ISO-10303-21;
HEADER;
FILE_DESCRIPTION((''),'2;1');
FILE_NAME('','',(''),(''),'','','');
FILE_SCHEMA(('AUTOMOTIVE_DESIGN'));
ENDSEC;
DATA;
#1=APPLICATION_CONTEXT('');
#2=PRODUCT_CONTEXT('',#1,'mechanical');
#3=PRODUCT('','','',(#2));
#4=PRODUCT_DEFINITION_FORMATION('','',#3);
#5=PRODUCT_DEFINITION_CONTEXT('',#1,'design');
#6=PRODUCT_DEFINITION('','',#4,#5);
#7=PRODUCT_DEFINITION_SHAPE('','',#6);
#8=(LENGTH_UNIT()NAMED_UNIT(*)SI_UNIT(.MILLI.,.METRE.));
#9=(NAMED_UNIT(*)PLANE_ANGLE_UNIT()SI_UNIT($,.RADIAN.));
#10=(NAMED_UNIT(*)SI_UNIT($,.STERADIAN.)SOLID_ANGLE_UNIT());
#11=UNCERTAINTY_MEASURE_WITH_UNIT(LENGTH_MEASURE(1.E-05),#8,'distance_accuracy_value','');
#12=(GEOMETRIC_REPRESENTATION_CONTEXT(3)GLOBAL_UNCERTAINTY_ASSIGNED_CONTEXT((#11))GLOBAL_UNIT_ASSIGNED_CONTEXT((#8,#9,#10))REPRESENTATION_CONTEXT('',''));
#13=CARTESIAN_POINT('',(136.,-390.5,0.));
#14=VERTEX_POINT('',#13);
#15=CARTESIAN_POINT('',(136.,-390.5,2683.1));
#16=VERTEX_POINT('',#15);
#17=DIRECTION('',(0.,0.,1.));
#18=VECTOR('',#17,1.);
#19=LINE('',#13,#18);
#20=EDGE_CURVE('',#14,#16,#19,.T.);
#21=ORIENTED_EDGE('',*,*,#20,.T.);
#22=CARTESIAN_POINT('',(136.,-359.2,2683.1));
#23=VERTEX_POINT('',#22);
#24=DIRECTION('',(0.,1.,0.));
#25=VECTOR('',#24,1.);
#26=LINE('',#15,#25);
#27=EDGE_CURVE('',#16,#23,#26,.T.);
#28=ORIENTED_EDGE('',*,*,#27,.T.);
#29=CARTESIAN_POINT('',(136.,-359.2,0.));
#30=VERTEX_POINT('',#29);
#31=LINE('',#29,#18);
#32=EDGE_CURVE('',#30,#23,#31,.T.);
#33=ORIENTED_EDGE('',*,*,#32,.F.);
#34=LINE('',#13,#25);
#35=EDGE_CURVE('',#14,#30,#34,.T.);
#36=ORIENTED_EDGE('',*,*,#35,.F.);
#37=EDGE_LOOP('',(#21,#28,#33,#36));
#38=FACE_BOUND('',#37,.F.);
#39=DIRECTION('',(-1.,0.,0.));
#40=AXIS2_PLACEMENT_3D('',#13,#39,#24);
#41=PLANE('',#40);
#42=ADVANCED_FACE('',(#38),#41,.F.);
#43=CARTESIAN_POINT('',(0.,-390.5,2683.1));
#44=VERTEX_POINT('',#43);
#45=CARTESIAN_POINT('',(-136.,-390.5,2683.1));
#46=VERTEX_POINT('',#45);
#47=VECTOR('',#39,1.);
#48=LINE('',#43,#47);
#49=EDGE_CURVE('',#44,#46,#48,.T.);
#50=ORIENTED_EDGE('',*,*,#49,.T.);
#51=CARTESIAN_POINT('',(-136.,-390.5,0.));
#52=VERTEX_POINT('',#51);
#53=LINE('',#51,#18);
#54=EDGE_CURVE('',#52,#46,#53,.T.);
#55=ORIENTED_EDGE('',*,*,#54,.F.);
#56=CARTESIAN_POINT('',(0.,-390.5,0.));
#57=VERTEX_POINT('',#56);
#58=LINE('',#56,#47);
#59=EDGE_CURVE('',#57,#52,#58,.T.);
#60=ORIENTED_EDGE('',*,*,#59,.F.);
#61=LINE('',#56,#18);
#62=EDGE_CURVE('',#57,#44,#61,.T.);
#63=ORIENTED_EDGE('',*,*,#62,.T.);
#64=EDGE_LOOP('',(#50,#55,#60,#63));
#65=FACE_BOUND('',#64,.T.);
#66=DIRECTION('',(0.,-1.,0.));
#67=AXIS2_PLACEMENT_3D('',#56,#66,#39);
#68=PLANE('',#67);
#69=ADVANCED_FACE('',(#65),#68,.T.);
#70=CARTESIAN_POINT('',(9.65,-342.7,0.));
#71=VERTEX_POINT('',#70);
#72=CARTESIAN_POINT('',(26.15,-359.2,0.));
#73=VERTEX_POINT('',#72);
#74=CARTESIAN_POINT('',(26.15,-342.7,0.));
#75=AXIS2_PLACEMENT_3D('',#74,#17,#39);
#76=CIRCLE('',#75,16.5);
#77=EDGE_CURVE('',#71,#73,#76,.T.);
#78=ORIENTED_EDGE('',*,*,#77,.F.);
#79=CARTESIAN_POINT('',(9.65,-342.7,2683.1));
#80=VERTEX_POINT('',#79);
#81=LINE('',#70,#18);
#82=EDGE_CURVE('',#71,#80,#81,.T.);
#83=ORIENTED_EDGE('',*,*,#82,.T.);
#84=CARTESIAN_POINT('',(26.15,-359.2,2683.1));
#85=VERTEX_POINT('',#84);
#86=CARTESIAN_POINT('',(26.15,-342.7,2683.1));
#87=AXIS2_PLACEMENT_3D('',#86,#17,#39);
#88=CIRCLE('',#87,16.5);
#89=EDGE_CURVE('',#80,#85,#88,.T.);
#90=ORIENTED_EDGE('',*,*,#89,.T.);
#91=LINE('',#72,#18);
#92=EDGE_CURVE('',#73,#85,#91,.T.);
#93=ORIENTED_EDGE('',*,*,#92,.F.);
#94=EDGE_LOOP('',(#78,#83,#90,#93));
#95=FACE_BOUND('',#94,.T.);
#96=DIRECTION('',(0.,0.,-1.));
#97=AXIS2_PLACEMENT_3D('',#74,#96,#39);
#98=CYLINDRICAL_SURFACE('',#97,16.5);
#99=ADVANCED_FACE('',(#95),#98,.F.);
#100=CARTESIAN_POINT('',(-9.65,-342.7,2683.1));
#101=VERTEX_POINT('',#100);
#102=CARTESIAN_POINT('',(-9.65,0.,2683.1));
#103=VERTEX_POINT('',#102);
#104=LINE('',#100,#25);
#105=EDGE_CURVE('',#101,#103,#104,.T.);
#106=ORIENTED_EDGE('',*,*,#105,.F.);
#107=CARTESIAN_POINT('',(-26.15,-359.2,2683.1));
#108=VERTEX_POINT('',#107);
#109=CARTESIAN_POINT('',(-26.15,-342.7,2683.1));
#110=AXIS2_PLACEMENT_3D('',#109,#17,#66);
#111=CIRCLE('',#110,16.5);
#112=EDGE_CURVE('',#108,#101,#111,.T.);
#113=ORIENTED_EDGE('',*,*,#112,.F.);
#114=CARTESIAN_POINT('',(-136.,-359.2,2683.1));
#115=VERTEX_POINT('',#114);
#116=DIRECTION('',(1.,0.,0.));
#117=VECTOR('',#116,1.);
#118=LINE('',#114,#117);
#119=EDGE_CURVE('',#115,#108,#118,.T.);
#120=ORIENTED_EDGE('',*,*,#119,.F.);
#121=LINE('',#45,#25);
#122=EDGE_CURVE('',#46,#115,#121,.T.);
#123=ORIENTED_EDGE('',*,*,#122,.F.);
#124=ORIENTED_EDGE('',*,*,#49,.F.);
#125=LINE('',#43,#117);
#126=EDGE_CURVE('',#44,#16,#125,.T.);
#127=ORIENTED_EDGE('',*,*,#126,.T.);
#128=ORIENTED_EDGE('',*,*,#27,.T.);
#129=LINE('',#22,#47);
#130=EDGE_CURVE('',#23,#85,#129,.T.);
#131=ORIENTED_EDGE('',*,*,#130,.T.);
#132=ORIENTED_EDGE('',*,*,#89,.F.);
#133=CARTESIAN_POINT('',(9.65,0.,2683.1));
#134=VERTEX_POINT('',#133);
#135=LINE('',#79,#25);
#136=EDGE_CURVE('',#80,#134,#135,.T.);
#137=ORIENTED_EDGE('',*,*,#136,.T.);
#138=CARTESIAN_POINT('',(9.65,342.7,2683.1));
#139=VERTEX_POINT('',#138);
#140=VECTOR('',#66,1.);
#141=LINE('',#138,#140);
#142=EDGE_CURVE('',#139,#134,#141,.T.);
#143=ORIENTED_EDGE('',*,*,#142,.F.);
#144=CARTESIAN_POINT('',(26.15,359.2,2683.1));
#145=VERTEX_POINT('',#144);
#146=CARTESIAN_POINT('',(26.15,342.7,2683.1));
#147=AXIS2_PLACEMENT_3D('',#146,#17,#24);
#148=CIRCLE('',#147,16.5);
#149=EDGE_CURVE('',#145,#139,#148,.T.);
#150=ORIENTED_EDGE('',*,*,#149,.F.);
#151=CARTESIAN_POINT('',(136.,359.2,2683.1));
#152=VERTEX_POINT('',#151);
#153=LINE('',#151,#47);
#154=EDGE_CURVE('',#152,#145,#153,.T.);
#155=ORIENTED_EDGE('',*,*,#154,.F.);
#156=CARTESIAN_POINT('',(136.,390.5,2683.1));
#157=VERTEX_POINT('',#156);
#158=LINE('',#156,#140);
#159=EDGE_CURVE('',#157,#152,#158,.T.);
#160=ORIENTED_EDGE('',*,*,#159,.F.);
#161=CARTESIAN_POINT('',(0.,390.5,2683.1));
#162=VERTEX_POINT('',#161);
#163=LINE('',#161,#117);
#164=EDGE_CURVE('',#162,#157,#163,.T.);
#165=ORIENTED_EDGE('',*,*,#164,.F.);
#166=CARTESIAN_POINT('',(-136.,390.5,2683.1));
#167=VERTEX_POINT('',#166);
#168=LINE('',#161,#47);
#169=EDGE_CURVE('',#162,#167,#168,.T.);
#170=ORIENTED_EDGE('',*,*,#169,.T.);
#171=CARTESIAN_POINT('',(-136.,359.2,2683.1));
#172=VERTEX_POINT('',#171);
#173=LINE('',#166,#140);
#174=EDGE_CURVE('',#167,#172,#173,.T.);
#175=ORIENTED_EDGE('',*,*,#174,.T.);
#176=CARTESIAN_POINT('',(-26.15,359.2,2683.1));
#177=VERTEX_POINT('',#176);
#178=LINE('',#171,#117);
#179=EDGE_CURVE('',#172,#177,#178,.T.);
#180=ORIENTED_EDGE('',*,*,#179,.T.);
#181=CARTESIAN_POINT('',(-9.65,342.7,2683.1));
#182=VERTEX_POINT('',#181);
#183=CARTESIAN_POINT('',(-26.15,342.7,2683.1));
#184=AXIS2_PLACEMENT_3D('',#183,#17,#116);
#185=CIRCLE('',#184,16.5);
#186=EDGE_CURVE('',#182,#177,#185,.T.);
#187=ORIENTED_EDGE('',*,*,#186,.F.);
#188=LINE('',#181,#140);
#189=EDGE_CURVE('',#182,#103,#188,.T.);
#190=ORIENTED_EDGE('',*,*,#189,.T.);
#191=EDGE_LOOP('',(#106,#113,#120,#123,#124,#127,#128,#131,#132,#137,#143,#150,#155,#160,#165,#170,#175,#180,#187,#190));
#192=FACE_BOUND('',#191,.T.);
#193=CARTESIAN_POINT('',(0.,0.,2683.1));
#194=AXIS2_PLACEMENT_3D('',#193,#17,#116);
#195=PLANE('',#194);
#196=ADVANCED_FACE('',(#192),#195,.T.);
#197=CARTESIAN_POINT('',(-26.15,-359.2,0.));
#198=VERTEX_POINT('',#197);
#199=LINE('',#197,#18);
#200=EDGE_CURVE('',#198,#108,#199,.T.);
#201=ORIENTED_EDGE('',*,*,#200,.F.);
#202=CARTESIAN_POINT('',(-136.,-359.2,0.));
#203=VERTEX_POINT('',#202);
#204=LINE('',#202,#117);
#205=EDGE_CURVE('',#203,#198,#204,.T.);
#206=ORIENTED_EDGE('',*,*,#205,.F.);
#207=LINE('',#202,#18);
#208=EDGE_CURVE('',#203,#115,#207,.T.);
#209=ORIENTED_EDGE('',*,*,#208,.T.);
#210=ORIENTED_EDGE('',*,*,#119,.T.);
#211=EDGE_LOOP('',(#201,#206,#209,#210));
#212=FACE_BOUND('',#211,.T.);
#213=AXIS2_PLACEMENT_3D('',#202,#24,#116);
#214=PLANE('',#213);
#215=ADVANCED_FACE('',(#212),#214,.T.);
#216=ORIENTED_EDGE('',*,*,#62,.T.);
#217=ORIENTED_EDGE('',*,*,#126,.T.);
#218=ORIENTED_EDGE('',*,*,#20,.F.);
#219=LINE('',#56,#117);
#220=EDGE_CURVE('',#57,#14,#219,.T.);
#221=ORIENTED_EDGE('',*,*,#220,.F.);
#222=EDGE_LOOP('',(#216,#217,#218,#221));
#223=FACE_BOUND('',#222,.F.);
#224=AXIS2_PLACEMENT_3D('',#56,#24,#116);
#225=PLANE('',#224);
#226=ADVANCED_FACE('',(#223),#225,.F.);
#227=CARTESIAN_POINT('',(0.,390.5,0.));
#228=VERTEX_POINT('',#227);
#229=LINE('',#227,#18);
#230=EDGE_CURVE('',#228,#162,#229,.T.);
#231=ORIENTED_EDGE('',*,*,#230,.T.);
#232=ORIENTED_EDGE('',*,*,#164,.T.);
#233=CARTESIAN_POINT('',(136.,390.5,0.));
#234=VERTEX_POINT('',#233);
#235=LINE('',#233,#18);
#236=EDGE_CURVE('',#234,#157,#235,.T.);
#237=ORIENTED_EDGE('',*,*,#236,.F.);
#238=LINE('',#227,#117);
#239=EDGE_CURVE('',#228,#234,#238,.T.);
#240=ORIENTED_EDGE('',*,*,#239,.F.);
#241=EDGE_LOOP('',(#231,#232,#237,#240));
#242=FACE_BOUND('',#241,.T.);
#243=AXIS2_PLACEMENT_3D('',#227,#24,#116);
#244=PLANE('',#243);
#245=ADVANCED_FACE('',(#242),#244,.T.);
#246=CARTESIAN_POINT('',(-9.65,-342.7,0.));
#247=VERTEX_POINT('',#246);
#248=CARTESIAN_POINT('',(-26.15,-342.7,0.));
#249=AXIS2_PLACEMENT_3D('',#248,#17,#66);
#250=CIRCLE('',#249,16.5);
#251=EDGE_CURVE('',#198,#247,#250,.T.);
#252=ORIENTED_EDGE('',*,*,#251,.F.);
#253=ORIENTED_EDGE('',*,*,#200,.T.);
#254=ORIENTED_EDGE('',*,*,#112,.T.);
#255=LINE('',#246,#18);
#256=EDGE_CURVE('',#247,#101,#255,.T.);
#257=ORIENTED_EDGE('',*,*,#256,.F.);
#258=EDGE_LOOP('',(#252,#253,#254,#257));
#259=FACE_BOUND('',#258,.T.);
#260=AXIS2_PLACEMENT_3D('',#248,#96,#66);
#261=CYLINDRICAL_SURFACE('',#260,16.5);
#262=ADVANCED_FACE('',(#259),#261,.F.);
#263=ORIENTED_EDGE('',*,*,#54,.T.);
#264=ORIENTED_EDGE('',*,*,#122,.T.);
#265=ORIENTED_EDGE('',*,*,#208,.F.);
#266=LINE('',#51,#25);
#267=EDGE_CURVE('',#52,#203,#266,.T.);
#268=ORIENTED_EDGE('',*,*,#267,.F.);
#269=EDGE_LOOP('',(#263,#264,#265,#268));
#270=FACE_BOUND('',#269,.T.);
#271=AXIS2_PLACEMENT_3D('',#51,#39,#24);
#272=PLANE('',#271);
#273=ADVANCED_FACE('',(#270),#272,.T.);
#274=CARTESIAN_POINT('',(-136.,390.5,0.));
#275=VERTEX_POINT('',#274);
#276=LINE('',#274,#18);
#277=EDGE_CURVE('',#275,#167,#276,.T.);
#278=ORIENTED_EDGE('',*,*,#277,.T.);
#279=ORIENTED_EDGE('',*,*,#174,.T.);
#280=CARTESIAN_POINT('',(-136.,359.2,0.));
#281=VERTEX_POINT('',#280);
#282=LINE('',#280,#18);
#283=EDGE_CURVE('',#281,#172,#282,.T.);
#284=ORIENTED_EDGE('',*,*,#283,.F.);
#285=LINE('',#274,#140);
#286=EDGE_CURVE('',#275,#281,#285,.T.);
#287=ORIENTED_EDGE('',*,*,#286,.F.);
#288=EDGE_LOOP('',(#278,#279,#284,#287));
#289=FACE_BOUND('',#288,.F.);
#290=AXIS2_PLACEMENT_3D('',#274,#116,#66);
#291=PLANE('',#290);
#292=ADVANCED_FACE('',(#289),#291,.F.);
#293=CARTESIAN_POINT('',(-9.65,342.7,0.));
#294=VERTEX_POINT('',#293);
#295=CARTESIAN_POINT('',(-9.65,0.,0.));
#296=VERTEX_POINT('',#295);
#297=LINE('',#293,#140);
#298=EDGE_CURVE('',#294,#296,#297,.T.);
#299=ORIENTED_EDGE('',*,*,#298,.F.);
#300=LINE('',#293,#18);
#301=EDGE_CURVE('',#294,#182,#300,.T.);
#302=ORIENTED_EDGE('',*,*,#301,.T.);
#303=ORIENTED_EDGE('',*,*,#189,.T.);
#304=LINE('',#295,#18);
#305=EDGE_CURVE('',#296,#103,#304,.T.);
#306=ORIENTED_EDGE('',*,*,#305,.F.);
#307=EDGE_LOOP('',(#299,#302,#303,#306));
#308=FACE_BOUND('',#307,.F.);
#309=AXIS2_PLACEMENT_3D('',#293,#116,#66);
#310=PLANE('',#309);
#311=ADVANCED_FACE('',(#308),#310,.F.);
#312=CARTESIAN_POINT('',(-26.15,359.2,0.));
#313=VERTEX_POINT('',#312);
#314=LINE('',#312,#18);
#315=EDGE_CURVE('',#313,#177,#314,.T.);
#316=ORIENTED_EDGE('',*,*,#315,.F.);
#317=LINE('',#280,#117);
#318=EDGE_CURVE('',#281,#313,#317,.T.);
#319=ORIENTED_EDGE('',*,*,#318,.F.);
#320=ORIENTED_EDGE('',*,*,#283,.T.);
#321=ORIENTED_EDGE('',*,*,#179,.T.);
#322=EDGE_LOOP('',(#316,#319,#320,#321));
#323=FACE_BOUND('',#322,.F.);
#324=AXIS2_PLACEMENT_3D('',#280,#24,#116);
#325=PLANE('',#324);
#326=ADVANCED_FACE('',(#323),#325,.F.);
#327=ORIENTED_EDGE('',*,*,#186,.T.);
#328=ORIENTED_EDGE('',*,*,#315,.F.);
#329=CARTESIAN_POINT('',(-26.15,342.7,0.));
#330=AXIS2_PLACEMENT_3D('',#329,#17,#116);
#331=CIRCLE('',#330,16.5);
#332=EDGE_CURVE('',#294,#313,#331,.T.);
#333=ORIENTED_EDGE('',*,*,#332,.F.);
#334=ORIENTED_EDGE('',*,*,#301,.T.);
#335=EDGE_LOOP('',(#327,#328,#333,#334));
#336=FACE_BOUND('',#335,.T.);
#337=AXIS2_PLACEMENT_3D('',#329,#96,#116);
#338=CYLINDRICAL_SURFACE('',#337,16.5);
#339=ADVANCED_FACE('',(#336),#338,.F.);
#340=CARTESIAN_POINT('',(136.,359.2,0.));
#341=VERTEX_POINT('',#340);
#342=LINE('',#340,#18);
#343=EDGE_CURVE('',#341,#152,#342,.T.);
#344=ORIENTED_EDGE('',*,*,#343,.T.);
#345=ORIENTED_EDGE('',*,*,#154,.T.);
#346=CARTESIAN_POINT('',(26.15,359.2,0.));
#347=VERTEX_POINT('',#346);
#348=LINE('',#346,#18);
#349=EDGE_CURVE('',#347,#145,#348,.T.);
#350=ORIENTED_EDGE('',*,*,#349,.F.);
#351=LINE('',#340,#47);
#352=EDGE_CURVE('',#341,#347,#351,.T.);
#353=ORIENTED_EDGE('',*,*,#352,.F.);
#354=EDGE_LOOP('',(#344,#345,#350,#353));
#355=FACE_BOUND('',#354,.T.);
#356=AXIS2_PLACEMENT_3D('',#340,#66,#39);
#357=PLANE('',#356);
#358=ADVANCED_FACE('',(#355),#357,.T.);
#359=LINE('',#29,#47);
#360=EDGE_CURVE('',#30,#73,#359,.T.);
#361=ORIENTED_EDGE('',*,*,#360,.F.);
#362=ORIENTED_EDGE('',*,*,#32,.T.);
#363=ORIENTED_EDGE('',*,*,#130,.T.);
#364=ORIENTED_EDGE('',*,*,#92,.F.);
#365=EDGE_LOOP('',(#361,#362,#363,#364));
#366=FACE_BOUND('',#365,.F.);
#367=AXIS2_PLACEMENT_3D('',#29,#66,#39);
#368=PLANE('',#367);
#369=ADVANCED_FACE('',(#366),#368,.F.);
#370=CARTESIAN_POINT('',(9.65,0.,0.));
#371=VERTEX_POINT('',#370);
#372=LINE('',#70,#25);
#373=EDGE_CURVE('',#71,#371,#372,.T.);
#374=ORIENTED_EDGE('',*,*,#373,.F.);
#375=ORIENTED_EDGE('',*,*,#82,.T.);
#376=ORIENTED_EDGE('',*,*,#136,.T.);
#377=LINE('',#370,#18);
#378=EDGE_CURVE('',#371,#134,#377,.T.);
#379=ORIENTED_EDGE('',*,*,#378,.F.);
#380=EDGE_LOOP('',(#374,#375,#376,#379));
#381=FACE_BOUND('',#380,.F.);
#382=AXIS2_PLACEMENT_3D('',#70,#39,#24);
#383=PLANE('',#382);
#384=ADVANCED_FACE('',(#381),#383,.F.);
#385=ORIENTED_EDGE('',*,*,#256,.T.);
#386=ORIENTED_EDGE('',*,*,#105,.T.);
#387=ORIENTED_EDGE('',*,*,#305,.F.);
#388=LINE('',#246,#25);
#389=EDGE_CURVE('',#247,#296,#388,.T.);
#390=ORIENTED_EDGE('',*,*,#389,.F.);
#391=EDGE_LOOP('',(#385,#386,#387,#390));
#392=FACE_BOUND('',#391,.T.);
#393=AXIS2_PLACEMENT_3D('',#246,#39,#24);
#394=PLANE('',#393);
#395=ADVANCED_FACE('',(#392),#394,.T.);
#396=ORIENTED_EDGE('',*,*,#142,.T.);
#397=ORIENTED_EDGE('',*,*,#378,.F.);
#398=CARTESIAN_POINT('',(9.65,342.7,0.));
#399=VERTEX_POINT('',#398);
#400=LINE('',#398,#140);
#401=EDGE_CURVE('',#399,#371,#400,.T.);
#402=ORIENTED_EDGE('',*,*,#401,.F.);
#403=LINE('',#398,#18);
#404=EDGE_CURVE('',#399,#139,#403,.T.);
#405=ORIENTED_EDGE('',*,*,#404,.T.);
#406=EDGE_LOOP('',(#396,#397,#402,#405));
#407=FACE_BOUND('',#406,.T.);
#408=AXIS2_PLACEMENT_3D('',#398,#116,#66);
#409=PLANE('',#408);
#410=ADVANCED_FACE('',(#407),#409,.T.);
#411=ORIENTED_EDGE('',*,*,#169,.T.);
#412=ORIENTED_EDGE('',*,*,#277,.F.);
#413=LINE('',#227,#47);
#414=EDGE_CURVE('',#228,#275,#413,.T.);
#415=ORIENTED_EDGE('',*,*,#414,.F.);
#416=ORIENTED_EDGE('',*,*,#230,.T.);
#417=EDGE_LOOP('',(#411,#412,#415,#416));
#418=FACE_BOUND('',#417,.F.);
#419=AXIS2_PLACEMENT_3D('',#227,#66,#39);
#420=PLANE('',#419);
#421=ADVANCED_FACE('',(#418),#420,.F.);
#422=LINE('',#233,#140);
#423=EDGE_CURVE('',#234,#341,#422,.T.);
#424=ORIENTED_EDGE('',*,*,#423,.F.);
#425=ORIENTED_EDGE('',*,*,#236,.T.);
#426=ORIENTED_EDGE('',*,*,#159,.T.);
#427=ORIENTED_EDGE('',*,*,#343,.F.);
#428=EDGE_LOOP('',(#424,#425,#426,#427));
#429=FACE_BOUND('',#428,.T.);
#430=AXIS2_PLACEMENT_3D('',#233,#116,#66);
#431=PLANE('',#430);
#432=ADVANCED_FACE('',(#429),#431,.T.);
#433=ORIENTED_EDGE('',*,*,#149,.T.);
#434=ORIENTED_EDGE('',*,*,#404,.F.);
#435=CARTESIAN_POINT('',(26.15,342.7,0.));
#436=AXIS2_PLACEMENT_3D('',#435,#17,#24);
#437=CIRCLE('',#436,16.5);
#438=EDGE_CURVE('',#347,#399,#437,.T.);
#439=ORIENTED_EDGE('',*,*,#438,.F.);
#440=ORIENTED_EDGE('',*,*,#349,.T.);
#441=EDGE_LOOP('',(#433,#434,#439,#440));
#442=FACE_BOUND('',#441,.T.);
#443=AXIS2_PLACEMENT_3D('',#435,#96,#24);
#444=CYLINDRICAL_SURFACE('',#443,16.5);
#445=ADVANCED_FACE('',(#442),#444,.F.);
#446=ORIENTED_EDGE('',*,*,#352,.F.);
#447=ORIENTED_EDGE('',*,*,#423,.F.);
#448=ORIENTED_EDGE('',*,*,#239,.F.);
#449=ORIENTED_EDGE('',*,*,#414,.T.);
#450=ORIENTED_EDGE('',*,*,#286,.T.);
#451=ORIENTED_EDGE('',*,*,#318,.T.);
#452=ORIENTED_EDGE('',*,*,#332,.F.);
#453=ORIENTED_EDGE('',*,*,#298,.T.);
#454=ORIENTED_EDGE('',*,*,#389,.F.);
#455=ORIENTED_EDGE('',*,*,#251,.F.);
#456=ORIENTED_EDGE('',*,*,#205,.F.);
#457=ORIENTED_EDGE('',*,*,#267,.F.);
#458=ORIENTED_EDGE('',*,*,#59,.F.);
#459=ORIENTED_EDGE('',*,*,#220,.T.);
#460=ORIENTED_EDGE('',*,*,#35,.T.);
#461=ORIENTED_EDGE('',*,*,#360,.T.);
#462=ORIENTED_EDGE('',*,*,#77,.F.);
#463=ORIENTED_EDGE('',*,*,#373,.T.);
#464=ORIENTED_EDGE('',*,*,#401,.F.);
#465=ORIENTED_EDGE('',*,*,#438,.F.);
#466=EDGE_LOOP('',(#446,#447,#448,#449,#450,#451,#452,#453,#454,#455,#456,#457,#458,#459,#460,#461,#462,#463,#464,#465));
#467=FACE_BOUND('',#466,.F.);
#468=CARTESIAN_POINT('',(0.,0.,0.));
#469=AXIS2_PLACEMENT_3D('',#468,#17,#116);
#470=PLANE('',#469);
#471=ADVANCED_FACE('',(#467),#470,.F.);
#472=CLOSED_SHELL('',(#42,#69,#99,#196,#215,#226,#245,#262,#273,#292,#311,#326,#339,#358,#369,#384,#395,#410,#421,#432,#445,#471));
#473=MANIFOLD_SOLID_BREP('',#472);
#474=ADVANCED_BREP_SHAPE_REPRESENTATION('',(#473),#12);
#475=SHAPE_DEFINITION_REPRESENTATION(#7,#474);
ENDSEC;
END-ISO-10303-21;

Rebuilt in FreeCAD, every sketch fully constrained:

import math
import FreeCAD as App
import Part
import Sketcher
from FreeCAD import Vector

doc = App.newDocument("Part")
body = doc.addObject("PartDesign::Body", "Body")

sketch1 = body.newObject("Sketcher::SketchObject", "Sketch")
sketch1.AttachmentSupport = (doc.getObject("XY_Plane"), [""])
sketch1.MapMode = "FlatFace"
sketch1.addGeometry([
    Part.LineSegment(Vector(-136, -359, 0), Vector(-136, -390, 0)),
    Part.LineSegment(Vector(-136, -390, 0), Vector(136, -390, 0)),
    Part.LineSegment(Vector(136, -390, 0), Vector(136, -359, 0)),
    Part.LineSegment(Vector(136, -359, 0), Vector(26, -359, 0)),
    Part.ArcOfCircle(Part.Circle(Vector(26, -343, 0), Vector(0, 0, 1), 16), math.radians(180), math.radians(270)),
    Part.LineSegment(Vector(10, -343, 0), Vector(10, 343, 0)),
    Part.ArcOfCircle(Part.Circle(Vector(26, 343, 0), Vector(0, 0, 1), 16), math.radians(90), math.radians(180)),
    Part.LineSegment(Vector(26, 359, 0), Vector(136, 359, 0)),
    Part.LineSegment(Vector(136, 359, 0), Vector(136, 390, 0)),
    Part.LineSegment(Vector(136, 390, 0), Vector(-136, 390, 0)),
    Part.LineSegment(Vector(-136, 390, 0), Vector(-136, 359, 0)),
    Part.LineSegment(Vector(-136, 359, 0), Vector(-26, 359, 0)),
    Part.ArcOfCircle(Part.Circle(Vector(-26, 343, 0), Vector(0, 0, 1), 16), math.radians(0), math.radians(90)),
    Part.LineSegment(Vector(-10, 343, 0), Vector(-10, -343, 0)),
    Part.ArcOfCircle(Part.Circle(Vector(-26, -343, 0), Vector(0, 0, 1), 16), math.radians(-90), math.radians(0)),
    Part.LineSegment(Vector(-26, -359, 0), Vector(-136, -359, 0)),
], False)
sketch1.addConstraint([
    Sketcher.Constraint("Coincident", 0, 2, 1, 1),
    Sketcher.Constraint("Coincident", 1, 2, 2, 1),
    Sketcher.Constraint("Coincident", 2, 2, 3, 1),
    Sketcher.Constraint("Tangent", 3, 2, 4, 2),
    Sketcher.Constraint("Tangent", 4, 1, 5, 1),
    Sketcher.Constraint("Tangent", 5, 2, 6, 2),
    Sketcher.Constraint("Tangent", 6, 1, 7, 1),
    Sketcher.Constraint("Coincident", 7, 2, 8, 1),
    Sketcher.Constraint("Coincident", 8, 2, 9, 1),
    Sketcher.Constraint("Coincident", 9, 2, 10, 1),
    Sketcher.Constraint("Coincident", 10, 2, 11, 1),
    Sketcher.Constraint("Tangent", 11, 2, 12, 2),
    Sketcher.Constraint("Tangent", 12, 1, 13, 1),
    Sketcher.Constraint("Tangent", 13, 2, 14, 2),
    Sketcher.Constraint("Tangent", 14, 1, 15, 1),
    Sketcher.Constraint("Coincident", 15, 2, 0, 1),
    Sketcher.Constraint("Vertical", 0),
    Sketcher.Constraint("Horizontal", 1),
    Sketcher.Constraint("Vertical", 2),
    Sketcher.Constraint("Horizontal", 3),
    Sketcher.Constraint("Vertical", 5),
    Sketcher.Constraint("Horizontal", 7),
    Sketcher.Constraint("Vertical", 8),
    Sketcher.Constraint("Horizontal", 9),
    Sketcher.Constraint("Vertical", 10),
    Sketcher.Constraint("Horizontal", 11),
    Sketcher.Constraint("Vertical", 13),
    Sketcher.Constraint("Horizontal", 15),
    Sketcher.Constraint("Equal", 4, 6),
    Sketcher.Constraint("Equal", 6, 12),
    Sketcher.Constraint("Equal", 12, 14),
    Sketcher.Constraint("Symmetric", 4, 3, 12, 3, -1, 1),
    Sketcher.Constraint("Symmetric", 0, 2, 8, 2, -1, 1),
    Sketcher.Constraint("Symmetric", 7, 2, 10, 2, -2),
    Sketcher.Constraint("Symmetric", 2, 2, 15, 2, -2),
    Sketcher.Constraint("Radius", 4, 16.5),
    Sketcher.Constraint("DistanceY", 0, 2, 0, 1, 31.3),
    Sketcher.Constraint("DistanceX", 0, 2, -1, 1, 136.0),
    Sketcher.Constraint("DistanceY", 0, 2, -1, 1, 390.5),
    Sketcher.Constraint("DistanceX", -1, 1, 4, 1, 9.65),
])
pad1 = body.newObject("PartDesign::Pad", "Pad")
pad1.Profile = sketch1
pad1.Length = 2683.1

doc.recompute()
